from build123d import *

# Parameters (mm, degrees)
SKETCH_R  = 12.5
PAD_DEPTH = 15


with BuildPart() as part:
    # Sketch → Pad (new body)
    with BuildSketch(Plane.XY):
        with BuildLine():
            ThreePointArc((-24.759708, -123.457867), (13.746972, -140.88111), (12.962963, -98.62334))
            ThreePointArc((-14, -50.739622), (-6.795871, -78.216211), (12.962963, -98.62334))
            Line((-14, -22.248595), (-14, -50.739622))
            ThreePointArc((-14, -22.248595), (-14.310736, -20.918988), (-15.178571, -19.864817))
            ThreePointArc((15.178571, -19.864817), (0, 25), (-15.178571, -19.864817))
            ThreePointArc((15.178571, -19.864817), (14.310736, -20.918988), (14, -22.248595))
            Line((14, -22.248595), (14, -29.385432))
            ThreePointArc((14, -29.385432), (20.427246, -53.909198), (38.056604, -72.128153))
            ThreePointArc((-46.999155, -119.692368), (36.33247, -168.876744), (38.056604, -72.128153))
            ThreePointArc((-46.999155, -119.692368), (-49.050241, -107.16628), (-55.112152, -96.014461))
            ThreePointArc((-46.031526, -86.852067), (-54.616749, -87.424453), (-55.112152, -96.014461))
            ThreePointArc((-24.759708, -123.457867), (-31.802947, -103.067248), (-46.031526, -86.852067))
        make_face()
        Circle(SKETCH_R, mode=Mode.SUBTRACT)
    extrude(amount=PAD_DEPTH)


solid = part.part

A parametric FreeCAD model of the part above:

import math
import FreeCAD as App
import Part
import Sketcher
Q = App.Units.Quantity

doc = App.newDocument("Part")
params = doc.addObject("Spreadsheet::Sheet", "Params")
for row, (alias, value) in enumerate([
    ("sketch1_diameter", "25 mm"),
    ("sketch1_radius", "25 mm"),
    ("sketch1_radius2", "37.999999 mm"),
    ("sketch1_radius3", "56 mm"),
    ("sketch1_radius4", "50 mm"),
    ("pad1_length", "15 mm"),
], start=1):
    params.set(f"A{row}", alias)
    params.set(f"B{row}", "=" + value)
    params.setAlias(f"B{row}", alias)

body = doc.addObject("PartDesign::Body", "Body")

# Sketch on XY plane
sketch1 = doc.addObject("Sketcher::SketchObject", "Sketch")
body.addObject(sketch1)
sketch1.AttachmentSupport = (doc.XY_Plane, [""])
sketch1.MapMode = "FlatFace"
sketch1.addGeometry(Part.ArcOfCircle(Part.Circle(App.Vector(0, -120, 0), App.Vector(0, 0, 1), 25), math.radians(-172), math.radians(59)), False)
sketch1.addGeometry(Part.ArcOfCircle(Part.Circle(App.Vector(-80.2, -131.2, 0), App.Vector(0, 0, 1), 56), math.radians(8), math.radians(52)), False)
sketch1.addGeometry(Part.ArcOfCircle(Part.Circle(App.Vector(-50, -92, 0), App.Vector(0, 0, 1), 6.5), math.radians(52), math.radians(218)), False)
sketch1.addGeometry(Part.ArcOfCircle(Part.Circle(App.Vector(-85, -119.5, 0), App.Vector(0, 0, 1), 38), math.radians(0), math.radians(38)), False)
sketch1.addGeometry(Part.ArcOfCircle(Part.Circle(App.Vector(9, -120, 0), App.Vector(0, 0, 1), 56), math.radians(180), math.radians(419)), False)
sketch1.addGeometry(Part.ArcOfCircle(Part.Circle(App.Vector(64, -29.4, 0), App.Vector(0, 0, 1), 50), math.radians(-180), math.radians(-121)), False)
sketch1.addGeometry(Part.LineSegment(App.Vector(14, -29.4, 0), App.Vector(14, -22.2, 0)), False)
sketch1.addGeometry(Part.ArcOfCircle(Part.Circle(App.Vector(17, -22.2, 0), App.Vector(0, 0, 1), 3), math.radians(127), math.radians(180)), False)
sketch1.addGeometry(Part.ArcOfCircle(Part.Circle(App.Vector(0, 0, 0), App.Vector(0, 0, 1), 25), math.radians(-53), math.radians(233)), False)
sketch1.addGeometry(Part.ArcOfCircle(Part.Circle(App.Vector(-17, -22.2, 0), App.Vector(0, 0, 1), 3), math.radians(0), math.radians(53)), False)
sketch1.addGeometry(Part.LineSegment(App.Vector(-14, -22.2, 0), App.Vector(-14, -50.7, 0)), False)
sketch1.addGeometry(Part.ArcOfCircle(Part.Circle(App.Vector(42, -50.7, 0), App.Vector(0, 0, 1), 56), math.radians(-180), math.radians(-121)), False)
sketch1.addGeometry(Part.Circle(App.Vector(0, 0, 0), App.Vector(0, 0, 1), 12.5), False)
sketch1.addConstraint(Sketcher.Constraint("Tangent", 0, 1, 1, 1))
sketch1.addConstraint(Sketcher.Constraint("Tangent", 1, 2, 2, 1))
sketch1.addConstraint(Sketcher.Constraint("Tangent", 2, 2, 3, 2))
sketch1.addConstraint(Sketcher.Constraint("Tangent", 3, 1, 4, 1))
sketch1.addConstraint(Sketcher.Constraint("Tangent", 4, 2, 5, 2))
sketch1.addConstraint(Sketcher.Constraint("Tangent", 5, 1, 6, 1))
sketch1.addConstraint(Sketcher.Constraint("Tangent", 6, 2, 7, 2))
sketch1.addConstraint(Sketcher.Constraint("Tangent", 7, 1, 8, 1))
sketch1.addConstraint(Sketcher.Constraint("Tangent", 8, 2, 9, 2))
sketch1.addConstraint(Sketcher.Constraint("Tangent", 9, 1, 10, 1))
sketch1.addConstraint(Sketcher.Constraint("Tangent", 10, 2, 11, 1))
sketch1.addConstraint(Sketcher.Constraint("Tangent", 11, 2, 0, 2))
sketch1.addConstraint(Sketcher.Constraint("Vertical", 6))
sketch1.addConstraint(Sketcher.Constraint("Vertical", 10))
sketch1.addConstraint(Sketcher.Constraint("Coincident", 8, 3, -1, 1))
sketch1.addConstraint(Sketcher.Constraint("Coincident", 12, 3, -1, 1))
sketch1.addConstraint(Sketcher.Constraint("Equal", 0, 8))
sketch1.addConstraint(Sketcher.Constraint("Equal", 7, 9))
sketch1.addConstraint(Sketcher.Constraint("Equal", 4, 11))
sketch1.addConstraint(Sketcher.Constraint("PointOnObject", 0, 3, -2))
sketch1.addConstraint(Sketcher.Constraint("Horizontal", 0, 3, 4, 3))
sketch1.addConstraint(Sketcher.Constraint("Horizontal", 7, 3, 9, 3))
sketch1.addConstraint(Sketcher.Constraint("Diameter", 12, Q("25 mm")))
sketch1.addConstraint(Sketcher.Constraint("Radius", 0, Q("25 mm")))
sketch1.addConstraint(Sketcher.Constraint("Radius", 3, Q("37.999999 mm")))
sketch1.addConstraint(Sketcher.Constraint("Radius", 4, Q("56 mm")))
sketch1.addConstraint(Sketcher.Constraint("Radius", 5, Q("50 mm")))
sketch1.addConstraint(Sketcher.Constraint("Radius", 2, Q("6.5 mm")))
sketch1.addConstraint(Sketcher.Constraint("DistanceY", 0, 3, -1, 1, Q("120 mm")))
sketch1.addConstraint(Sketcher.Constraint("DistanceX", 2, 3, -1, 1, Q("50 mm")))
sketch1.addConstraint(Sketcher.Constraint("DistanceY", 2, 3, -1, 1, Q("92 mm")))
sketch1.addConstraint(Sketcher.Constraint("DistanceX", -1, 1, 4, 3, Q("9 mm")))
sketch1.addConstraint(Sketcher.Constraint("DistanceX", -1, 1, 5, 3, Q("64 mm")))
sketch1.addConstraint(Sketcher.Constraint("Radius", 1, Q("55.999998 mm")))
sketch1.addConstraint(Sketcher.Constraint("Radius", 7, Q("3.000007 mm")))
sketch1.setExpression("Constraints[22]", "Params.sketch1_diameter")
sketch1.setExpression("Constraints[23]", "Params.sketch1_radius")
sketch1.setExpression("Constraints[24]", "Params.sketch1_radius2")
sketch1.setExpression("Constraints[25]", "Params.sketch1_radius3")
sketch1.setExpression("Constraints[26]", "Params.sketch1_radius4")
pad1 = doc.addObject("PartDesign::Pad", "Pad")
body.addObject(pad1)
pad1.Profile = sketch1
pad1.setExpression("Length", "Params.pad1_length")

doc.recompute()
